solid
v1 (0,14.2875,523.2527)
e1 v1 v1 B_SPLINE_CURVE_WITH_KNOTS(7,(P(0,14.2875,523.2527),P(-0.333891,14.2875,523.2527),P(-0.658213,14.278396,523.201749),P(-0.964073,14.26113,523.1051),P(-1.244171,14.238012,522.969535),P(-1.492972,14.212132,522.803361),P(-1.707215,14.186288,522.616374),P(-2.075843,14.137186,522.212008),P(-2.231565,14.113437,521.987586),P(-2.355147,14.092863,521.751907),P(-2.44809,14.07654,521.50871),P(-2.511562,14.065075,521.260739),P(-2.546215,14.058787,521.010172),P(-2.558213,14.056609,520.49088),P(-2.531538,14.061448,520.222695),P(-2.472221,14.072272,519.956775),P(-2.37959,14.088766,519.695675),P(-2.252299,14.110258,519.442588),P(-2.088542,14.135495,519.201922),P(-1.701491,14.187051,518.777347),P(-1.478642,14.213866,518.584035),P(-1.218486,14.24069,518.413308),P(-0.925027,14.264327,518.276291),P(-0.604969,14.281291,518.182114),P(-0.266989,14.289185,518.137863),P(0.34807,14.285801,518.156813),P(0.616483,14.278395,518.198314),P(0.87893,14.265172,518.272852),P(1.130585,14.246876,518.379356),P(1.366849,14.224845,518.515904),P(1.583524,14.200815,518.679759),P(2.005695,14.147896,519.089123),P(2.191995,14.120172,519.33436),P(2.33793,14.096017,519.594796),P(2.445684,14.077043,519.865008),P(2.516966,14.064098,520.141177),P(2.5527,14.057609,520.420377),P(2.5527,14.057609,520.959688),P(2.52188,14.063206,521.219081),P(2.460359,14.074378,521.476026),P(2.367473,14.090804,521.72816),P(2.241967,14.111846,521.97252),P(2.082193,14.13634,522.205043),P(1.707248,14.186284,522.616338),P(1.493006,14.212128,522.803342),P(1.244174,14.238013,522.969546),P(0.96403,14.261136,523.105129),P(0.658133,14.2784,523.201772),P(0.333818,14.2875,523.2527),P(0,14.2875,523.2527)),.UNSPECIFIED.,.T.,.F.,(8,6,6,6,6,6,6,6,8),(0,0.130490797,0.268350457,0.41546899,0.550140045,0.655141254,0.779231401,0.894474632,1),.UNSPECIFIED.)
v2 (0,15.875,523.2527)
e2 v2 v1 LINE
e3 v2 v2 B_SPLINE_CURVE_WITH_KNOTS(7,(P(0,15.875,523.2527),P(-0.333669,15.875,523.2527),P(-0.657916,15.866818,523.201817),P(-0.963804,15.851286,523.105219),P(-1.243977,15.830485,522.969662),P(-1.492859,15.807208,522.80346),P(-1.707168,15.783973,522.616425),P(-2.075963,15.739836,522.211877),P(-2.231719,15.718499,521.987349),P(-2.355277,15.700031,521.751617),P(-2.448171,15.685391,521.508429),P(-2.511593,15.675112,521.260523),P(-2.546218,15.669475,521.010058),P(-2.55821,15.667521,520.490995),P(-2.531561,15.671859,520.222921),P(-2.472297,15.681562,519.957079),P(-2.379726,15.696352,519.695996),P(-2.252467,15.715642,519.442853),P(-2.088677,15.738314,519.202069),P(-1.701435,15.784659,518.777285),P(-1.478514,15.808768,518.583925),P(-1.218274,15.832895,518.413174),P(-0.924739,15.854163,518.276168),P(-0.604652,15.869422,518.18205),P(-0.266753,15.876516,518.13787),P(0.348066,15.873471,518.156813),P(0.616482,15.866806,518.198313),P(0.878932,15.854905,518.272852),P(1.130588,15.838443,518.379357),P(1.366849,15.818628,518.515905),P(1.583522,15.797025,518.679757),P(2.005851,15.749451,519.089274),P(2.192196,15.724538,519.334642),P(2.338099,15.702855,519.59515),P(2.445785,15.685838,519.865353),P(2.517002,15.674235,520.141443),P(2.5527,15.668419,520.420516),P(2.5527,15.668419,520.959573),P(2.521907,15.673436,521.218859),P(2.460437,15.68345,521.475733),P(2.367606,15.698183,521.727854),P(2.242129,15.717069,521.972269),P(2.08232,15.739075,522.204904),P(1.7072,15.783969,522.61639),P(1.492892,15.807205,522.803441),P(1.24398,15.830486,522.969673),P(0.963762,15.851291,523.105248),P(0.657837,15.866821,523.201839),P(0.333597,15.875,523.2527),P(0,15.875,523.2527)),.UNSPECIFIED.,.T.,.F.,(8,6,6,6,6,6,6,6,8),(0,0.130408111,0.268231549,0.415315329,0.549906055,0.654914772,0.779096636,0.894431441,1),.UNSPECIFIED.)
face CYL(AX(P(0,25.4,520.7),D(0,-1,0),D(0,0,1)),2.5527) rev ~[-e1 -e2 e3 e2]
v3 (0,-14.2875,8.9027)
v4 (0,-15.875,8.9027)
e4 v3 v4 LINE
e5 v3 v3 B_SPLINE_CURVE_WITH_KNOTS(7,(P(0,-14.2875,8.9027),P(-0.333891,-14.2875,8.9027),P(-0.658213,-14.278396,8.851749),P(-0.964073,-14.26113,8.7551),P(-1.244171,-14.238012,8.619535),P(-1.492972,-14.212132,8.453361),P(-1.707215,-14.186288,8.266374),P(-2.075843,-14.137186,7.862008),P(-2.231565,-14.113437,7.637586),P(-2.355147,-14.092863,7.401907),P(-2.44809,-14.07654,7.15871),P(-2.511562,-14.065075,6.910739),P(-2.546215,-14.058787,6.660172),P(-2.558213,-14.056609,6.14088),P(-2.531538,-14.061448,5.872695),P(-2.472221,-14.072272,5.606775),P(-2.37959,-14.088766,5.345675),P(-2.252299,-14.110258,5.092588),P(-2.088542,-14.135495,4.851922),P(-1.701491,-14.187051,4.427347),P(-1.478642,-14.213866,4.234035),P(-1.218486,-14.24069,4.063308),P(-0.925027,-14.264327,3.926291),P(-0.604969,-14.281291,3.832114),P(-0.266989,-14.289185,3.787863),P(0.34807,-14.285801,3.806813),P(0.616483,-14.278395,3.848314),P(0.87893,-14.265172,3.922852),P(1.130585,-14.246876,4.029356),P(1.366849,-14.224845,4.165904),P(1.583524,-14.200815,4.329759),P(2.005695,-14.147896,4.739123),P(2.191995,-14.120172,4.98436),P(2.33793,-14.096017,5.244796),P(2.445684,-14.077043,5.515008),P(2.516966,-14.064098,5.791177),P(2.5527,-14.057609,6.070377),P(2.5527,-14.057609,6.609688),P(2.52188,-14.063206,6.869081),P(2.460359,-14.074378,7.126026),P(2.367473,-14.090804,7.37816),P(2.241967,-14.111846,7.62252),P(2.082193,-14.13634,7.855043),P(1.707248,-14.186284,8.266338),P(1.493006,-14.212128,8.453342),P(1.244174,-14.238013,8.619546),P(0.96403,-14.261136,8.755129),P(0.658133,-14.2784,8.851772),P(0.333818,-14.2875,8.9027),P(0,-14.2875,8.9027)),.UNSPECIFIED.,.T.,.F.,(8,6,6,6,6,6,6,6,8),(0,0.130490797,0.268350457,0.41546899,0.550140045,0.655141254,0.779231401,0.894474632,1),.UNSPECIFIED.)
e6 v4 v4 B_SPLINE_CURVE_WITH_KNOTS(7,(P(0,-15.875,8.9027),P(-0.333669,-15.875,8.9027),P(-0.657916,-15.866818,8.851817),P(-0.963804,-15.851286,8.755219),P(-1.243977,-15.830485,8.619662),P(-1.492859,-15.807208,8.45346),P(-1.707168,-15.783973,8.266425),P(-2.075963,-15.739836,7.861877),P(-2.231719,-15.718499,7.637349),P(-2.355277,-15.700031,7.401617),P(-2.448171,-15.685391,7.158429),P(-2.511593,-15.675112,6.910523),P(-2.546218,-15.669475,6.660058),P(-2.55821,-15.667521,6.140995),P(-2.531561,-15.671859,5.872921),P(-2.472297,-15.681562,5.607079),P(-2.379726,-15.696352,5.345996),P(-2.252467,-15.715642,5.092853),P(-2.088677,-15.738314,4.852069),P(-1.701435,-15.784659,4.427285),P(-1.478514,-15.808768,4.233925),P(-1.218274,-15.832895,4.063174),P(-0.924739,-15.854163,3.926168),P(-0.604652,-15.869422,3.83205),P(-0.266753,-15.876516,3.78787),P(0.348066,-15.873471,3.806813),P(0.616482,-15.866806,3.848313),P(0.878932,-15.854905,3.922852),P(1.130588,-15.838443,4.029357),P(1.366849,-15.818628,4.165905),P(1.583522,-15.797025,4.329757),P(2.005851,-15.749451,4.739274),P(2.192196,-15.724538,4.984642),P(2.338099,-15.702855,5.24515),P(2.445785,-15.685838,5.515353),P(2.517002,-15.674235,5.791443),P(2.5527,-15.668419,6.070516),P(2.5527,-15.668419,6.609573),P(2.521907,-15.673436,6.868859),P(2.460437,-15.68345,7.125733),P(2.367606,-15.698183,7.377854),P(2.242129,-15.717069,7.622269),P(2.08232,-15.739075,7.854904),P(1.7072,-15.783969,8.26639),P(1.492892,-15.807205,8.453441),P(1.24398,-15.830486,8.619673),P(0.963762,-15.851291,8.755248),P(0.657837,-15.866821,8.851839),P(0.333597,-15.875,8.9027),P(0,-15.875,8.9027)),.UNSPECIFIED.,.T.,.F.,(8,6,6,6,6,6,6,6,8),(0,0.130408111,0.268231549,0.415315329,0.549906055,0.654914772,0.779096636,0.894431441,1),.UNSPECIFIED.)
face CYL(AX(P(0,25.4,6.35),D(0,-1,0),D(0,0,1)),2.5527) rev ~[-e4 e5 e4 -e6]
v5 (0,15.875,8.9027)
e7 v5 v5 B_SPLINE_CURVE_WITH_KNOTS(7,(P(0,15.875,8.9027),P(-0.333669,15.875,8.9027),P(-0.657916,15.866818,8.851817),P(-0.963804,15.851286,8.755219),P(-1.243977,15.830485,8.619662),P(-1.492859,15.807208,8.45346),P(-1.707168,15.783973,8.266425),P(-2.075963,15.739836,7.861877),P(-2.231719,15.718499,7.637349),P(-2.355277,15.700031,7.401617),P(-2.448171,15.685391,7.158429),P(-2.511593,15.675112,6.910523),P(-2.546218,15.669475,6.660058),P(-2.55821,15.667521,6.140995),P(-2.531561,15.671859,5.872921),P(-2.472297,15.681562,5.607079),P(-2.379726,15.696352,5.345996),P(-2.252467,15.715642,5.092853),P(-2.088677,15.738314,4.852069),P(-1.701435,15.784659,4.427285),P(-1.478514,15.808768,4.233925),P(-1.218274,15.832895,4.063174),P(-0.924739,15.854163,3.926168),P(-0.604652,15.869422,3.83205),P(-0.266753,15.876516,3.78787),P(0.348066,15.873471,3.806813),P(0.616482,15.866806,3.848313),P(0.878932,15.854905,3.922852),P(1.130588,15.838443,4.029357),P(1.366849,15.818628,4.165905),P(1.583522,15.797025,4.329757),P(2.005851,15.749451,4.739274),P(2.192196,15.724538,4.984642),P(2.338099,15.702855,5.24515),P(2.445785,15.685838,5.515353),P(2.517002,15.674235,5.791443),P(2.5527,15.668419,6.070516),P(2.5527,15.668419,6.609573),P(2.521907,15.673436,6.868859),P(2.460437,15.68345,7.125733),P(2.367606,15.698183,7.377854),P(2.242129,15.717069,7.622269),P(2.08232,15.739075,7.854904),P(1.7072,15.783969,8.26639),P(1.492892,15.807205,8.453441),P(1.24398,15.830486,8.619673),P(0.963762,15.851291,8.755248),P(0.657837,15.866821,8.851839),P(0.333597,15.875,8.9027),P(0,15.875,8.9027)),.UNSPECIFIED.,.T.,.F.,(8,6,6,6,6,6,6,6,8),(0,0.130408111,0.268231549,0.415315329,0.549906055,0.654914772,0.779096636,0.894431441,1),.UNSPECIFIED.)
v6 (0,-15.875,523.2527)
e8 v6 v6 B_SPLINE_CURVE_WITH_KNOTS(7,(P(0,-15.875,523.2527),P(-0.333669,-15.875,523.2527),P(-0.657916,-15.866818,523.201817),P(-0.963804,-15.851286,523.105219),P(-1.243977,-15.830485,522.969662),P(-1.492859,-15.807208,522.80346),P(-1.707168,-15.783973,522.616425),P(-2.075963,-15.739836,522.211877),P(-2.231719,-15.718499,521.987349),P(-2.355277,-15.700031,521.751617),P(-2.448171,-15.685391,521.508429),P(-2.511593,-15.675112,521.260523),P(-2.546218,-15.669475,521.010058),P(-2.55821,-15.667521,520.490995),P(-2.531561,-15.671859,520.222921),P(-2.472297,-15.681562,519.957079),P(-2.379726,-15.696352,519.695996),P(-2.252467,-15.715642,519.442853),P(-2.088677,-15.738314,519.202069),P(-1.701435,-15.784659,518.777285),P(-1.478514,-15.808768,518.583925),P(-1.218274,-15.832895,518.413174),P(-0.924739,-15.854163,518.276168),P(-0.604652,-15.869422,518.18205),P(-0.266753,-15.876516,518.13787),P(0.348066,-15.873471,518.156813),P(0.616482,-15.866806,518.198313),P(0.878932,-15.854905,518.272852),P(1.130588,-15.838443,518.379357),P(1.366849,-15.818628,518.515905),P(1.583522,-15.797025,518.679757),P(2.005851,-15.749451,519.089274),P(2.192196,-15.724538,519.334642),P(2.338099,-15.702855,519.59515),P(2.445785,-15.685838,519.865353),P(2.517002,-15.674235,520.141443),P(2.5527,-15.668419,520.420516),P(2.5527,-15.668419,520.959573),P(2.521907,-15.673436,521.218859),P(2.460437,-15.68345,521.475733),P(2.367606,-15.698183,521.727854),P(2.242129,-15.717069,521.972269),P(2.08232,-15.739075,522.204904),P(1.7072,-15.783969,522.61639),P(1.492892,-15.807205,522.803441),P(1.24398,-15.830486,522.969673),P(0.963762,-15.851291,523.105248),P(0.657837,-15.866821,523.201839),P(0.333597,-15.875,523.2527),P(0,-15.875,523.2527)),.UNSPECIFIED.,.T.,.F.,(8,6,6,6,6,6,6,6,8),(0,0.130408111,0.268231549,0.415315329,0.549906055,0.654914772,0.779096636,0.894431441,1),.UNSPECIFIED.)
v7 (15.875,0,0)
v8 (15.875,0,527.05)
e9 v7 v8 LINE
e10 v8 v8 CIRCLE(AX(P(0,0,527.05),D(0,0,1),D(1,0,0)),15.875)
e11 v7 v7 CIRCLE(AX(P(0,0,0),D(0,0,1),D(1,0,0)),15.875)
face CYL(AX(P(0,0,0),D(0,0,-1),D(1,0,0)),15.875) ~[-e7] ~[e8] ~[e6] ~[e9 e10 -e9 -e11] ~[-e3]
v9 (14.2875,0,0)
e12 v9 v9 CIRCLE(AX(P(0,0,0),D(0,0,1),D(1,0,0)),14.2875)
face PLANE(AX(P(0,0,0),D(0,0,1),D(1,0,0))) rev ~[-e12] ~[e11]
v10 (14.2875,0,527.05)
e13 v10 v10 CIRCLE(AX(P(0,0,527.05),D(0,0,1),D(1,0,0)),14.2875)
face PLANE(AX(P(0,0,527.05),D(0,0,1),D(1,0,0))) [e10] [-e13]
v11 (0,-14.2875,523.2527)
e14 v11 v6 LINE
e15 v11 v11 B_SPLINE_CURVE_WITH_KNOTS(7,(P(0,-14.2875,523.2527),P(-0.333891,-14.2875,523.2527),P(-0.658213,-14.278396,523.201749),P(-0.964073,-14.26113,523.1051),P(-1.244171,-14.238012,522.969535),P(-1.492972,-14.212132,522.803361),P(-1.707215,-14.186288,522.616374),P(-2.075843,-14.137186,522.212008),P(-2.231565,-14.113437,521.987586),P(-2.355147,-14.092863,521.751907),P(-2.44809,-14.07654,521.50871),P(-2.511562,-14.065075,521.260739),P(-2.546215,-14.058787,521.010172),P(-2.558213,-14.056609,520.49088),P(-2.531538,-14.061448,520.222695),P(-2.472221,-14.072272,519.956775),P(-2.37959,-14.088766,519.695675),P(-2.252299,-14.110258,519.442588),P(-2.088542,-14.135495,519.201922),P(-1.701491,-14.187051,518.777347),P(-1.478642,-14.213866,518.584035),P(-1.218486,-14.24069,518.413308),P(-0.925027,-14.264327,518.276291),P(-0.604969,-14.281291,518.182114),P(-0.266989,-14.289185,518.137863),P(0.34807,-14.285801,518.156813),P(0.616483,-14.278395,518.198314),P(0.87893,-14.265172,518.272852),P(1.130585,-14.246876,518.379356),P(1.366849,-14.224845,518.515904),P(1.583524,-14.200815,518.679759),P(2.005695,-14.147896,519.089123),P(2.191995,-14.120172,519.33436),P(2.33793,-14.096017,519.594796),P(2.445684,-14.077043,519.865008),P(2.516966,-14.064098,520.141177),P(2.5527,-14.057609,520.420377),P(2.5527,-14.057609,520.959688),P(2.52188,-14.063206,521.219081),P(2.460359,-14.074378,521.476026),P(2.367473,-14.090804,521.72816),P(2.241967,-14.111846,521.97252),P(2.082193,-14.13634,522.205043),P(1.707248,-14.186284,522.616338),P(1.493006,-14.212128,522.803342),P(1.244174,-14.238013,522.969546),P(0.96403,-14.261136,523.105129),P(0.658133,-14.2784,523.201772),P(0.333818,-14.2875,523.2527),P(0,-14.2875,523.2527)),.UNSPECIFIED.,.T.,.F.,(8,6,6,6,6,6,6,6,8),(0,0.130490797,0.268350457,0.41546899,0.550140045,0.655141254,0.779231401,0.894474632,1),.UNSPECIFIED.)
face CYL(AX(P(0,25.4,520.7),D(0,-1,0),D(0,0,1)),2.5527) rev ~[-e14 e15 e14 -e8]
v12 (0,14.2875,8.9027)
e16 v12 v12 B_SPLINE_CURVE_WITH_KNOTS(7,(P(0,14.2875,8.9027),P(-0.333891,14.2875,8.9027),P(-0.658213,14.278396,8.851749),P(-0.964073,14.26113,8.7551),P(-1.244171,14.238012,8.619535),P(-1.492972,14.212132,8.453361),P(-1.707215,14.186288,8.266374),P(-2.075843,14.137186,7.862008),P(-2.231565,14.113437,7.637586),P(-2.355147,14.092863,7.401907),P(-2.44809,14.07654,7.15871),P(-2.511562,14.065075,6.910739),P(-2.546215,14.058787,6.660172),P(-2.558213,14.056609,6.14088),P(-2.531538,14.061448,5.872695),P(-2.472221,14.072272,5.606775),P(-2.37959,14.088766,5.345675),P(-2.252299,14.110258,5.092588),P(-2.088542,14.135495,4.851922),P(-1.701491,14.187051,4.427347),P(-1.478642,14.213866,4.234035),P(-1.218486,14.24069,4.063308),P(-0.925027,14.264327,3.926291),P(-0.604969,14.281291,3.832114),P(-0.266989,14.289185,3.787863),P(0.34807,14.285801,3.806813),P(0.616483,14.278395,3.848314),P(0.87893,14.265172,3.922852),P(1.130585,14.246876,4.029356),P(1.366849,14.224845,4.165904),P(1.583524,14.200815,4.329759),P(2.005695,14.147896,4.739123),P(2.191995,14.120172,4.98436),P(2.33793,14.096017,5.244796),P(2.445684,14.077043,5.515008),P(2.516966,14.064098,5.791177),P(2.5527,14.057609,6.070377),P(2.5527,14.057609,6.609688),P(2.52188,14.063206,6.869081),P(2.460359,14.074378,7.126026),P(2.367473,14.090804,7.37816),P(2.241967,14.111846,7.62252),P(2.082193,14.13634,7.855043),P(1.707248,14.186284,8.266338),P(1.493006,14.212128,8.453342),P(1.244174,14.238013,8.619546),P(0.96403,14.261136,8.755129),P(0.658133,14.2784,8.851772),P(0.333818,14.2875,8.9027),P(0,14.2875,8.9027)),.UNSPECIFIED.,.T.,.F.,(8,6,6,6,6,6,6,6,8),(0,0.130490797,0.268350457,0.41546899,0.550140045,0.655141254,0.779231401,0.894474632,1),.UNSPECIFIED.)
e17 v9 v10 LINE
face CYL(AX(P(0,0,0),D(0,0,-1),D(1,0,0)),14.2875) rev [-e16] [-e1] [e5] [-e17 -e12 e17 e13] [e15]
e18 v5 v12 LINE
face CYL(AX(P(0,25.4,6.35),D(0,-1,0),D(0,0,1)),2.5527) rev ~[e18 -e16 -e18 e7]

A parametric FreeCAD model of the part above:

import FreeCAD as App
import Part
import Sketcher

V = App.Vector
Q = App.Units.Quantity

doc = App.newDocument("Part")
params = doc.addObject("Spreadsheet::Sheet", "Params")
for row, (alias, value) in enumerate([
    ("sketch1_diameter", "1.25 in"),
    ("sketch1_diameter2", "1.125 in"),
    ("pad1_length", "20.75 in"),
    ("sketch2_diameter", "0.201 in"),
    ("hole_diameter", "0.201 in"),
], start=1):
    params.set(f"A{row}", alias)
    params.set(f"B{row}", "=" + value)
    params.setAlias(f"B{row}", alias)

body = doc.addObject("PartDesign::Body", "Body")

# Sketch on XY plane
sketch1 = body.newObject("Sketcher::SketchObject", "Sketch")
sketch1.AttachmentSupport = (doc.getObject("XY_Plane"), [""])
sketch1.MapMode = "FlatFace"
sketch1.addGeometry([
    Part.Circle(V(0, 0, 0), V(0, 0, 1), 15.875),
    Part.Circle(V(0, 0, 0), V(0, 0, 1), 14.2875),
], False)
sketch1.addConstraint([
    Sketcher.Constraint("Coincident", 0, 3, -1, 1),
    Sketcher.Constraint("Coincident", 1, 3, -1, 1),
    Sketcher.Constraint("Diameter", 0, Q("1.25 in")),
    Sketcher.Constraint("Diameter", 1, Q("1.125 in")),
])
sketch1.setExpression("Constraints[2]", "Params.sketch1_diameter")
sketch1.setExpression("Constraints[3]", "Params.sketch1_diameter2")
pad1 = body.newObject("PartDesign::Pad", "Pad")
pad1.Profile = sketch1
pad1.setExpression("Length", "Params.pad1_length")

# Sketch on XZ plane
sketch2 = body.newObject("Sketcher::SketchObject", "Sketch001")
sketch2.AttachmentSupport = (doc.getObject("XZ_Plane"), [""])
sketch2.MapMode = "FlatFace"
sketch2.AttachmentOffset = App.Placement(V(0, 0, -1 * 25.4), App.Rotation())
sketch2.addGeometry([
    Part.Circle(V(0, 6.35, 0), V(0, 0, 1), 2.5527),
    Part.Circle(V(0, 520.7, 0), V(0, 0, 1), 2.5527),
], False)
sketch2.addConstraint([
    Sketcher.Constraint("Equal", 0, 1),
    Sketcher.Constraint("PointOnObject", 0, 3, -2),
    Sketcher.Constraint("PointOnObject", 1, 3, -2),
    Sketcher.Constraint("Diameter", 0, Q("0.201 in")),
    Sketcher.Constraint("DistanceY", -1, 1, 1, 3, Q("20.5 in")),
    Sketcher.Constraint("DistanceY", -1, 1, 0, 3, Q("0.25 in")),
])
sketch2.setExpression("Constraints[3]", "Params.sketch2_diameter")
doc.recompute()
hole = body.newObject("PartDesign::Hole", "Hole")
hole.Profile = sketch2
hole.ThreadType = "None"
hole.setExpression("Diameter", "Params.hole_diameter")
hole.DepthType = "ThroughAll"
hole.Reversed = True

doc.recompute()
